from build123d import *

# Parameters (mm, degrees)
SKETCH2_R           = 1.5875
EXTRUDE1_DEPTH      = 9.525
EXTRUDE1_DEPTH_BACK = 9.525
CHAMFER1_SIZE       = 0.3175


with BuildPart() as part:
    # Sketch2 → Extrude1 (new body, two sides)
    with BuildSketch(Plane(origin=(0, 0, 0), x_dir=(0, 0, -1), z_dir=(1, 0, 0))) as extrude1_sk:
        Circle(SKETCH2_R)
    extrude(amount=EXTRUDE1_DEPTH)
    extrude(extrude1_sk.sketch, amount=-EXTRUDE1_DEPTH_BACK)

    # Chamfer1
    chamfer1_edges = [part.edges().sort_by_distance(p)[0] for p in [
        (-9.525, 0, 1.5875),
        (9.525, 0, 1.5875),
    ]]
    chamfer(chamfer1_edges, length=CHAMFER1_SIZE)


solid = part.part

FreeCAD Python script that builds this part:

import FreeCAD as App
import Part
import Sketcher
from FreeCAD import Vector
Q = App.Units.Quantity


def edges_at(feature, points):
    """Names of the edges that pass closest to the given points."""
    edges = feature.Shape.Edges
    near = lambda p: min(range(len(edges)), key=lambda i: edges[i].distToShape(Part.Vertex(*p))[0])
    return sorted({f"Edge{near(p) + 1}" for p in points})

doc = App.newDocument("Part")
body = doc.addObject("PartDesign::Body", "Body")

# Sketch on YZ plane
sketch1 = body.newObject("Sketcher::SketchObject", "Sketch")
sketch1.AttachmentSupport = (doc.getObject("YZ_Plane"), [""])
sketch1.MapMode = "FlatFace"
sketch1.addGeometry(Part.Circle(Vector(0, 0, 0), Vector(0, 0, 1), 1.6), False)
sketch1.addConstraint([
    Sketcher.Constraint("Coincident", 0, 3, -1, 1),
    Sketcher.Constraint("Diameter", 0, Q("0.125 in")),
])
pad1 = body.newObject("PartDesign::Pad", "Pad")
pad1.Profile = sketch1
pad1.Type = "TwoLengths"
pad1.Length = Q("0.375 in")
pad1.Length2 = Q("0.375 in")
doc.recompute()

chamfer = body.newObject("PartDesign::Chamfer", "Chamfer")
chamfer.Base = (pad1, edges_at(pad1, [(-9.525, 0, 1.587), (9.525, 0, 1.587)]))
chamfer.Size = Q("0.0125 in")

doc.recompute()
